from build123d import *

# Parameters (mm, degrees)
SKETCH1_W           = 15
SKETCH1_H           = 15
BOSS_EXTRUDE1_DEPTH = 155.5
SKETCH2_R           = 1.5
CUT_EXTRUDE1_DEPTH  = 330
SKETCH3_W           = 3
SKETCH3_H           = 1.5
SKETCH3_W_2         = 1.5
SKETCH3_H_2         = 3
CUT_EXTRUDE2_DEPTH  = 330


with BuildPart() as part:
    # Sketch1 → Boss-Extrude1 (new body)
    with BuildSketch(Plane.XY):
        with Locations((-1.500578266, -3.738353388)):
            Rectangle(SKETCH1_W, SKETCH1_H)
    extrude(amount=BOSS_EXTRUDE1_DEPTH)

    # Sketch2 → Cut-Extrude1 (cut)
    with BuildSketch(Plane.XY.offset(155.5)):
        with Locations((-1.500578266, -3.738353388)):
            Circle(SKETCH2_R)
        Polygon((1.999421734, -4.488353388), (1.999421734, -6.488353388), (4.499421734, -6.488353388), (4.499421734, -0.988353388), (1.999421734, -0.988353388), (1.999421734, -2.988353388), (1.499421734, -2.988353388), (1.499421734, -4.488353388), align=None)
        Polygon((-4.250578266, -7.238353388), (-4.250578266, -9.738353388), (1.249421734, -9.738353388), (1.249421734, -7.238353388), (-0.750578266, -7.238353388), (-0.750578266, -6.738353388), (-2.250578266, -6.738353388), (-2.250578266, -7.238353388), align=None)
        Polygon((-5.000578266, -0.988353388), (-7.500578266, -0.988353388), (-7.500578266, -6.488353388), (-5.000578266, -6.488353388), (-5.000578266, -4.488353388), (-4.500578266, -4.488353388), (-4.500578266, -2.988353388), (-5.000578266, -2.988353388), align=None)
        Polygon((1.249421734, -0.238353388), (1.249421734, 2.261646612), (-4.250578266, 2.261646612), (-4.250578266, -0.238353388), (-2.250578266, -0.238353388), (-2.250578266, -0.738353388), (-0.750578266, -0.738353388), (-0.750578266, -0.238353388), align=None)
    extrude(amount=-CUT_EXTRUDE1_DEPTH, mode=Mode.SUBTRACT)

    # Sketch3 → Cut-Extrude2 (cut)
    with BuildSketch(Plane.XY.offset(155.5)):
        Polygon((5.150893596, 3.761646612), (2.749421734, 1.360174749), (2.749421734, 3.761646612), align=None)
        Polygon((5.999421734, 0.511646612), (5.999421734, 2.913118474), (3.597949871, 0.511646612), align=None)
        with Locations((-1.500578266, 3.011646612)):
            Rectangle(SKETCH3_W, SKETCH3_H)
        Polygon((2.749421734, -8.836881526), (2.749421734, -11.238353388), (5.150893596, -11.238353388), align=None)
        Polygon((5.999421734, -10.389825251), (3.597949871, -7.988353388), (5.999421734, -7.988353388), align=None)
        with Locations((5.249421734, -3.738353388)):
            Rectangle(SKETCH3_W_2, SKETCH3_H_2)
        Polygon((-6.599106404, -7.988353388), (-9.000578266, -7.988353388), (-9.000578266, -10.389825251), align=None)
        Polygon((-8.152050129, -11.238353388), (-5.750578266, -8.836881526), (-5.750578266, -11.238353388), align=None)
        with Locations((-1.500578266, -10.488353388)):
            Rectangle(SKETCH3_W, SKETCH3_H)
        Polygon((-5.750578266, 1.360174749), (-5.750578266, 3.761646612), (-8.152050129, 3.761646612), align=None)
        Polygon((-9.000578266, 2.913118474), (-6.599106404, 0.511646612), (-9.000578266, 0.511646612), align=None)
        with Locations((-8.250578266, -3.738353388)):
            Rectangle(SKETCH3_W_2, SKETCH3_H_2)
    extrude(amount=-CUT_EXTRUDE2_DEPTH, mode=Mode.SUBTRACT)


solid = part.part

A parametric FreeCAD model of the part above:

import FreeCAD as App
import Part
import Sketcher

V = App.Vector
Q = App.Units.Quantity

doc = App.newDocument("Part")
body = doc.addObject("PartDesign::Body", "Body")

sketch1 = doc.addObject("Sketcher::SketchObject", "Sketch")
body.addObject(sketch1)
sketch1.AttachmentSupport = (doc.XY_Plane, [""])
sketch1.MapMode = "FlatFace"
sketch1.addGeometry([
    Part.LineSegment(V(-9.000578, 3.761647, 0), V(-9.000578, -11.238353, 0)),
    Part.LineSegment(V(-9.000578, -11.238353, 0), V(5.999422, -11.238353, 0)),
    Part.LineSegment(V(5.999422, -11.238353, 0), V(5.999422, 3.761647, 0)),
    Part.LineSegment(V(5.999422, 3.761647, 0), V(-9.000578, 3.761647, 0)),
], False)
sketch1.addConstraint([
    Sketcher.Constraint("Coincident", 0, 2, 1, 1),
    Sketcher.Constraint("Coincident", 1, 2, 2, 1),
    Sketcher.Constraint("Coincident", 2, 2, 3, 1),
    Sketcher.Constraint("Coincident", 3, 2, 0, 1),
    Sketcher.Constraint("Vertical", 0),
    Sketcher.Constraint("Horizontal", 1),
    Sketcher.Constraint("Vertical", 2),
    Sketcher.Constraint("Horizontal", 3),
    Sketcher.Constraint("Equal", 3, 0),
    Sketcher.Constraint("DistanceX", 1, 1, 1, 2, Q("15 mm")),
    Sketcher.Constraint("DistanceX", 0, 2, -1, 1, Q("9.000578 mm")),
    Sketcher.Constraint("DistanceY", 0, 2, -1, 1, Q("11.238353 mm")),
])
pad1 = doc.addObject("PartDesign::Pad", "Pad")
body.addObject(pad1)
pad1.Profile = sketch1
pad1.Length = 155.5

sketch2 = doc.addObject("Sketcher::SketchObject", "Sketch001")
body.addObject(sketch2)
sketch2.AttachmentSupport = (doc.XY_Plane, [""])
sketch2.MapMode = "FlatFace"
sketch2.AttachmentOffset = App.Placement(V(0, 0, 155.5), App.Rotation())
sketch2.addGeometry([
    Part.Circle(V(-1.500578, -3.738353, 0), V(0, 0, 1), 1.5),
    Part.LineSegment(V(1.999422, -4.488353, 0), V(1.999422, -6.488353, 0)),
    Part.LineSegment(V(1.999422, -6.488353, 0), V(4.499422, -6.488353, 0)),
    Part.LineSegment(V(4.499422, -6.488353, 0), V(4.499422, -0.988353, 0)),
    Part.LineSegment(V(4.499422, -0.988353, 0), V(1.999422, -0.988353, 0)),
    Part.LineSegment(V(1.999422, -0.988353, 0), V(1.999422, -2.988353, 0)),
    Part.LineSegment(V(1.999422, -2.988353, 0), V(1.499422, -2.988353, 0)),
    Part.LineSegment(V(1.499422, -2.988353, 0), V(1.499422, -4.488353, 0)),
    Part.LineSegment(V(1.499422, -4.488353, 0), V(1.999422, -4.488353, 0)),
    Part.LineSegment(V(-4.250578, -7.238353, 0), V(-4.250578, -9.738353, 0)),
    Part.LineSegment(V(-4.250578, -9.738353, 0), V(1.249422, -9.738353, 0)),
    Part.LineSegment(V(1.249422, -9.738353, 0), V(1.249422, -7.238353, 0)),
    Part.LineSegment(V(1.249422, -7.238353, 0), V(-0.750578, -7.238353, 0)),
    Part.LineSegment(V(-0.750578, -7.238353, 0), V(-0.750578, -6.738353, 0)),
    Part.LineSegment(V(-0.750578, -6.738353, 0), V(-2.250578, -6.738353, 0)),
    Part.LineSegment(V(-2.250578, -6.738353, 0), V(-2.250578, -7.238353, 0)),
    Part.LineSegment(V(-2.250578, -7.238353, 0), V(-4.250578, -7.238353, 0)),
    Part.LineSegment(V(-5.000578, -0.988353, 0), V(-7.500578, -0.988353, 0)),
    Part.LineSegment(V(-7.500578, -0.988353, 0), V(-7.500578, -6.488353, 0)),
    Part.LineSegment(V(-7.500578, -6.488353, 0), V(-5.000578, -6.488353, 0)),
    Part.LineSegment(V(-5.000578, -6.488353, 0), V(-5.000578, -4.488353, 0)),
    Part.LineSegment(V(-5.000578, -4.488353, 0), V(-4.500578, -4.488353, 0)),
    Part.LineSegment(V(-4.500578, -4.488353, 0), V(-4.500578, -2.988353, 0)),
    Part.LineSegment(V(-4.500578, -2.988353, 0), V(-5.000578, -2.988353, 0)),
    Part.LineSegment(V(-5.000578, -2.988353, 0), V(-5.000578, -0.988353, 0)),
    Part.LineSegment(V(1.249422, -0.238353, 0), V(1.249422, 2.261647, 0)),
    Part.LineSegment(V(1.249422, 2.261647, 0), V(-4.250578, 2.261647, 0)),
    Part.LineSegment(V(-4.250578, 2.261647, 0), V(-4.250578, -0.238353, 0)),
    Part.LineSegment(V(-4.250578, -0.238353, 0), V(-2.250578, -0.238353, 0)),
    Part.LineSegment(V(-2.250578, -0.238353, 0), V(-2.250578, -0.738353, 0)),
    Part.LineSegment(V(-2.250578, -0.738353, 0), V(-0.750578, -0.738353, 0)),
    Part.LineSegment(V(-0.750578, -0.738353, 0), V(-0.750578, -0.238353, 0)),
    Part.LineSegment(V(-0.750578, -0.238353, 0), V(1.249422, -0.238353, 0)),
], False)
sketch2.addConstraint([
    Sketcher.Constraint("Coincident", 1, 2, 2, 1),
    Sketcher.Constraint("Coincident", 2, 2, 3, 1),
    Sketcher.Constraint("Coincident", 3, 2, 4, 1),
    Sketcher.Constraint("Coincident", 4, 2, 5, 1),
    Sketcher.Constraint("Coincident", 5, 2, 6, 1),
    Sketcher.Constraint("Coincident", 6, 2, 7, 1),
    Sketcher.Constraint("Coincident", 7, 2, 8, 1),
    Sketcher.Constraint("Coincident", 8, 2, 1, 1),
    Sketcher.Constraint("Coincident", 9, 2, 10, 1),
    Sketcher.Constraint("Coincident", 10, 2, 11, 1),
    Sketcher.Constraint("Coincident", 11, 2, 12, 1),
    Sketcher.Constraint("Coincident", 12, 2, 13, 1),
    Sketcher.Constraint("Coincident", 13, 2, 14, 1),
    Sketcher.Constraint("Coincident", 14, 2, 15, 1),
    Sketcher.Constraint("Coincident", 15, 2, 16, 1),
    Sketcher.Constraint("Coincident", 16, 2, 9, 1),
    Sketcher.Constraint("Coincident", 17, 2, 18, 1),
    Sketcher.Constraint("Coincident", 18, 2, 19, 1),
    Sketcher.Constraint("Coincident", 19, 2, 20, 1),
    Sketcher.Constraint("Coincident", 20, 2, 21, 1),
    Sketcher.Constraint("Coincident", 21, 2, 22, 1),
    Sketcher.Constraint("Coincident", 22, 2, 23, 1),
    Sketcher.Constraint("Coincident", 23, 2, 24, 1),
    Sketcher.Constraint("Coincident", 24, 2, 17, 1),
    Sketcher.Constraint("Coincident", 25, 2, 26, 1),
    Sketcher.Constraint("Coincident", 26, 2, 27, 1),
    Sketcher.Constraint("Coincident", 27, 2, 28, 1),
    Sketcher.Constraint("Coincident", 28, 2, 29, 1),
    Sketcher.Constraint("Coincident", 29, 2, 30, 1),
    Sketcher.Constraint("Coincident", 30, 2, 31, 1),
    Sketcher.Constraint("Coincident", 31, 2, 32, 1),
    Sketcher.Constraint("Coincident", 32, 2, 25, 1),
    Sketcher.Constraint("Vertical", 1),
    Sketcher.Constraint("Horizontal", 2),
    Sketcher.Constraint("Vertical", 3),
    Sketcher.Constraint("Horizontal", 4),
    Sketcher.Constraint("Vertical", 5),
    Sketcher.Constraint("Horizontal", 6),
    Sketcher.Constraint("Vertical", 7),
    Sketcher.Constraint("Horizontal", 8),
    Sketcher.Constraint("Vertical", 9),
    Sketcher.Constraint("Horizontal", 10),
    Sketcher.Constraint("Vertical", 11),
    Sketcher.Constraint("Horizontal", 12),
    Sketcher.Constraint("Vertical", 13),
    Sketcher.Constraint("Horizontal", 14),
    Sketcher.Constraint("Vertical", 15),
    Sketcher.Constraint("Horizontal", 16),
    Sketcher.Constraint("Horizontal", 17),
    Sketcher.Constraint("Vertical", 18),
    Sketcher.Constraint("Horizontal", 19),
    Sketcher.Constraint("Vertical", 20),
    Sketcher.Constraint("Horizontal", 21),
    Sketcher.Constraint("Vertical", 22),
    Sketcher.Constraint("Horizontal", 23),
    Sketcher.Constraint("Vertical", 24),
    Sketcher.Constraint("Vertical", 25),
    Sketcher.Constraint("Horizontal", 26),
    Sketcher.Constraint("Vertical", 27),
    Sketcher.Constraint("Horizontal", 28),
    Sketcher.Constraint("Vertical", 29),
    Sketcher.Constraint("Horizontal", 30),
    Sketcher.Constraint("Vertical", 31),
    Sketcher.Constraint("Horizontal", 32),
    Sketcher.Constraint("Horizontal", 12, 2, 15, 2),
    Sketcher.Constraint("Horizontal", 4, 2, 17, 2),
    Sketcher.Constraint("Horizontal", 2, 2, 18, 2),
    Sketcher.Constraint("Horizontal", 8, 2, 20, 2),
    Sketcher.Constraint("Horizontal", 6, 2, 22, 2),
    Sketcher.Constraint("Horizontal", 28, 2, 31, 2),
    Sketcher.Constraint("Vertical", 1, 2, 4, 2),
    Sketcher.Constraint("Vertical", 20, 2, 23, 2),
    Sketcher.Constraint("Vertical", 11, 2, 25, 2),
    Sketcher.Constraint("Vertical", 16, 2, 26, 2),
    Sketcher.Constraint("Vertical", 15, 2, 28, 2),
    Sketcher.Constraint("Vertical", 13, 2, 30, 2),
    Sketcher.Constraint("Equal", 12, 16),
    Sketcher.Constraint("Equal", 4, 17),
    Sketcher.Constraint("Equal", 8, 21),
    Sketcher.Constraint("Equal", 32, 1),
    Sketcher.Constraint("Equal", 26, 3),
    Sketcher.Constraint("Equal", 1, 5),
    Sketcher.Constraint("Equal", 19, 9),
    Sketcher.Constraint("Equal", 23, 13),
    Sketcher.Constraint("Equal", 11, 25),
    Sketcher.Constraint("Equal", 15, 29),
    Sketcher.Constraint("Diameter", 0, Q("3 mm")),
    Sketcher.Constraint("DistanceX", 12, 2, 12, 1, Q("2 mm")),
    Sketcher.Constraint("DistanceX", 2, 1, 2, 2, Q("2.5 mm")),
    Sketcher.Constraint("DistanceX", 6, 2, 6, 1, Q("0.5 mm")),
    Sketcher.Constraint("DistanceX", 10, 1, 10, 2, Q("5.5 mm")),
    Sketcher.Constraint("DistanceX", 0, 3, 2, 2, Q("6 mm")),
    Sketcher.Constraint("DistanceY", 9, 2, 0, 3, Q("6 mm")),
    Sketcher.Constraint("DistanceX", 17, 2, 0, 3, Q("6 mm")),
    Sketcher.Constraint("DistanceY", 0, 3, 25, 2, Q("6 mm")),
    Sketcher.Constraint("DistanceY", 1, 2, 0, 3, Q("2.75 mm")),
    Sketcher.Constraint("DistanceX", 9, 2, 0, 3, Q("2.75 mm")),
    Sketcher.Constraint("DistanceX", 0, 3, -1, 1, Q("1.500578 mm")),
    Sketcher.Constraint("DistanceY", 0, 3, -1, 1, Q("3.738353 mm")),
])
pocket1 = doc.addObject("PartDesign::Pocket", "Pocket")
body.addObject(pocket1)
pocket1.Profile = sketch2
pocket1.Length = 330

sketch3 = doc.addObject("Sketcher::SketchObject", "Sketch002")
body.addObject(sketch3)
sketch3.AttachmentSupport = (doc.XY_Plane, [""])
sketch3.MapMode = "FlatFace"
sketch3.AttachmentOffset = App.Placement(V(0, 0, 155.5), App.Rotation())
sketch3.addGeometry([
    Part.LineSegment(V(2.749422, 1.360175, 0), V(5.150894, 3.761647, 0)),
    Part.LineSegment(V(5.150894, 3.761647, 0), V(2.749422, 3.761647, 0)),
    Part.LineSegment(V(2.749422, 3.761647, 0), V(2.749422, 1.360175, 0)),
    Part.LineSegment(V(5.999422, 0.511647, 0), V(5.999422, 2.913118, 0)),
    Part.LineSegment(V(5.999422, 2.913118, 0), V(3.59795, 0.511647, 0)),
    Part.LineSegment(V(3.59795, 0.511647, 0), V(5.999422, 0.511647, 0)),
    Part.LineSegment(V(-3.000578, 3.761647, 0), V(-3.000578, 2.261647, 0)),
    Part.LineSegment(V(-3.000578, 2.261647, 0), V(-0.000578, 2.261647, 0)),
    Part.LineSegment(V(-0.000578, 2.261647, 0), V(-0.000578, 3.761647, 0)),
    Part.LineSegment(V(-0.000578, 3.761647, 0), V(-3.000578, 3.761647, 0)),
    Part.LineSegment(V(2.749422, -8.836882, 0), V(2.749422, -11.238353, 0)),
    Part.LineSegment(V(2.749422, -11.238353, 0), V(5.150894, -11.238353, 0)),
    Part.LineSegment(V(5.150894, -11.238353, 0), V(2.749422, -8.836882, 0)),
    Part.LineSegment(V(3.59795, -7.988353, 0), V(5.999422, -10.389825, 0)),
    Part.LineSegment(V(5.999422, -10.389825, 0), V(5.999422, -7.988353, 0)),
    Part.LineSegment(V(5.999422, -7.988353, 0), V(3.59795, -7.988353, 0)),
    Part.LineSegment(V(4.499422, -2.238353, 0), V(4.499422, -5.238353, 0)),
    Part.LineSegment(V(4.499422, -5.238353, 0), V(5.999422, -5.238353, 0)),
    Part.LineSegment(V(5.999422, -5.238353, 0), V(5.999422, -2.238353, 0)),
    Part.LineSegment(V(5.999422, -2.238353, 0), V(4.499422, -2.238353, 0)),
    Part.LineSegment(V(-6.599106, -7.988353, 0), V(-9.000578, -7.988353, 0)),
    Part.LineSegment(V(-9.000578, -7.988353, 0), V(-9.000578, -10.389825, 0)),
    Part.LineSegment(V(-9.000578, -10.389825, 0), V(-6.599106, -7.988353, 0)),
    Part.LineSegment(V(-5.750578, -8.836882, 0), V(-8.15205, -11.238353, 0)),
    Part.LineSegment(V(-8.15205, -11.238353, 0), V(-5.750578, -11.238353, 0)),
    Part.LineSegment(V(-5.750578, -11.238353, 0), V(-5.750578, -8.836882, 0)),
    Part.LineSegment(V(-3.000578, -9.738353, 0), V(-3.000578, -11.238353, 0)),
    Part.LineSegment(V(-3.000578, -11.238353, 0), V(-0.000578, -11.238353, 0)),
    Part.LineSegment(V(-0.000578, -11.238353, 0), V(-0.000578, -9.738353, 0)),
    Part.LineSegment(V(-0.000578, -9.738353, 0), V(-3.000578, -9.738353, 0)),
    Part.LineSegment(V(-5.750578, 1.360175, 0), V(-5.750578, 3.761647, 0)),
    Part.LineSegment(V(-5.750578, 3.761647, 0), V(-8.15205, 3.761647, 0)),
    Part.LineSegment(V(-8.15205, 3.761647, 0), V(-5.750578, 1.360175, 0)),
    Part.LineSegment(V(-6.599106, 0.511647, 0), V(-9.000578, 2.913118, 0)),
    Part.LineSegment(V(-9.000578, 2.913118, 0), V(-9.000578, 0.511647, 0)),
    Part.LineSegment(V(-9.000578, 0.511647, 0), V(-6.599106, 0.511647, 0)),
    Part.LineSegment(V(-9.000578, -2.238353, 0), V(-9.000578, -5.238353, 0)),
    Part.LineSegment(V(-9.000578, -5.238353, 0), V(-7.500578, -5.238353, 0)),
    Part.LineSegment(V(-7.500578, -5.238353, 0), V(-7.500578, -2.238353, 0)),
    Part.LineSegment(V(-7.500578, -2.238353, 0), V(-9.000578, -2.238353, 0)),
], False)
sketch3.addConstraint([
    Sketcher.Constraint("Coincident", 0, 2, 1, 1),
    Sketcher.Constraint("Coincident", 1, 2, 2, 1),
    Sketcher.Constraint("Coincident", 2, 2, 0, 1),
    Sketcher.Constraint("Coincident", 3, 2, 4, 1),
    Sketcher.Constraint("Coincident", 4, 2, 5, 1),
    Sketcher.Constraint("Coincident", 5, 2, 3, 1),
    Sketcher.Constraint("Coincident", 6, 2, 7, 1),
    Sketcher.Constraint("Coincident", 7, 2, 8, 1),
    Sketcher.Constraint("Coincident", 8, 2, 9, 1),
    Sketcher.Constraint("Coincident", 9, 2, 6, 1),
    Sketcher.Constraint("Coincident", 10, 2, 11, 1),
    Sketcher.Constraint("Coincident", 11, 2, 12, 1),
    Sketcher.Constraint("Coincident", 12, 2, 10, 1),
    Sketcher.Constraint("Coincident", 13, 2, 14, 1),
    Sketcher.Constraint("Coincident", 14, 2, 15, 1),
    Sketcher.Constraint("Coincident", 15, 2, 13, 1),
    Sketcher.Constraint("Coincident", 16, 2, 17, 1),
    Sketcher.Constraint("Coincident", 17, 2, 18, 1),
    Sketcher.Constraint("Coincident", 18, 2, 19, 1),
    Sketcher.Constraint("Coincident", 19, 2, 16, 1),
    Sketcher.Constraint("Coincident", 20, 2, 21, 1),
    Sketcher.Constraint("Coincident", 21, 2, 22, 1),
    Sketcher.Constraint("Coincident", 22, 2, 20, 1),
    Sketcher.Constraint("Coincident", 23, 2, 24, 1),
    Sketcher.Constraint("Coincident", 24, 2, 25, 1),
    Sketcher.Constraint("Coincident", 25, 2, 23, 1),
    Sketcher.Constraint("Coincident", 26, 2, 27, 1),
    Sketcher.Constraint("Coincident", 27, 2, 28, 1),
    Sketcher.Constraint("Coincident", 28, 2, 29, 1),
    Sketcher.Constraint("Coincident", 29, 2, 26, 1),
    Sketcher.Constraint("Coincident", 30, 2, 31, 1),
    Sketcher.Constraint("Coincident", 31, 2, 32, 1),
    Sketcher.Constraint("Coincident", 32, 2, 30, 1),
    Sketcher.Constraint("Coincident", 33, 2, 34, 1),
    Sketcher.Constraint("Coincident", 34, 2, 35, 1),
    Sketcher.Constraint("Coincident", 35, 2, 33, 1),
    Sketcher.Constraint("Coincident", 36, 2, 37, 1),
    Sketcher.Constraint("Coincident", 37, 2, 38, 1),
    Sketcher.Constraint("Coincident", 38, 2, 39, 1),
    Sketcher.Constraint("Coincident", 39, 2, 36, 1),
    Sketcher.Constraint("Horizontal", 1),
    Sketcher.Constraint("Vertical", 2),
    Sketcher.Constraint("Vertical", 3),
    Sketcher.Constraint("Horizontal", 5),
    Sketcher.Constraint("Vertical", 6),
    Sketcher.Constraint("Horizontal", 7),
    Sketcher.Constraint("Vertical", 8),
    Sketcher.Constraint("Horizontal", 9),
    Sketcher.Constraint("Vertical", 10),
    Sketcher.Constraint("Horizontal", 11),
    Sketcher.Constraint("Vertical", 14),
    Sketcher.Constraint("Horizontal", 15),
    Sketcher.Constraint("Vertical", 16),
    Sketcher.Constraint("Horizontal", 17),
    Sketcher.Constraint("Vertical", 18),
    Sketcher.Constraint("Horizontal", 19),
    Sketcher.Constraint("Horizontal", 20),
    Sketcher.Constraint("Vertical", 21),
    Sketcher.Constraint("Horizontal", 24),
    Sketcher.Constraint("Vertical", 25),
    Sketcher.Constraint("Vertical", 26),
    Sketcher.Constraint("Horizontal", 27),
    Sketcher.Constraint("Vertical", 28),
    Sketcher.Constraint("Horizontal", 29),
    Sketcher.Constraint("Vertical", 30),
    Sketcher.Constraint("Horizontal", 31),
    Sketcher.Constraint("Vertical", 34),
    Sketcher.Constraint("Horizontal", 35),
    Sketcher.Constraint("Vertical", 36),
    Sketcher.Constraint("Horizontal", 37),
    Sketcher.Constraint("Vertical", 38),
    Sketcher.Constraint("Horizontal", 39),
    Sketcher.Constraint("Parallel", 0, 4),
    Sketcher.Constraint("Perpendicular", 4, 12),
    Sketcher.Constraint("Parallel", 12, 13),
    Sketcher.Constraint("Perpendicular", 13, 22),
    Sketcher.Constraint("Parallel", 22, 23),
    Sketcher.Constraint("Perpendicular", 23, 32),
    Sketcher.Constraint("Parallel", 32, 33),
    Sketcher.Constraint("Horizontal", 1, 2, 8, 2),
    Sketcher.Constraint("Horizontal", 15, 2, 20, 2),
    Sketcher.Constraint("Horizontal", 13, 2, 21, 2),
    Sketcher.Constraint("Horizontal", 11, 2, 23, 2),
    Sketcher.Constraint("Horizontal", 12, 2, 25, 2),
    Sketcher.Constraint("Horizontal", 24, 2, 26, 2),
    Sketcher.Constraint("Horizontal", 9, 2, 30, 2),
    Sketcher.Constraint("Horizontal", 2, 2, 32, 2),
    Sketcher.Constraint("Horizontal", 3, 2, 33, 2),
    Sketcher.Constraint("Horizontal", 5, 2, 34, 2),
    Sketcher.Constraint("Horizontal", 17, 2, 36, 2),
    Sketcher.Constraint("Horizontal", 19, 2, 38, 2),
    Sketcher.Constraint("Vertical", 2, 2, 10, 2),
    Sketcher.Constraint("Vertical", 0, 2, 11, 2),
    Sketcher.Constraint("Vertical", 5, 2, 13, 2),
    Sketcher.Constraint("Vertical", 4, 2, 15, 2),
    Sketcher.Constraint("Vertical", 14, 2, 17, 2),
    Sketcher.Constraint("Vertical", 9, 2, 26, 2),
    Sketcher.Constraint("Vertical", 8, 2, 27, 2),
    Sketcher.Constraint("Vertical", 25, 2, 30, 2),
    Sketcher.Constraint("Vertical", 23, 2, 31, 2),
    Sketcher.Constraint("Vertical", 21, 2, 33, 2),
    Sketcher.Constraint("Vertical", 34, 2, 36, 2),
    Sketcher.Constraint("Equal", 1, 5),
    Sketcher.Constraint("Equal", 19, 37),
    Sketcher.Constraint("Equal", 39, 6),
    Sketcher.Constraint("Equal", 29, 16),
    Sketcher.Constraint("Equal", 8, 26),
    Sketcher.Constraint("DistanceX", 7, 1, 7, 2, Q("3 mm")),
    Sketcher.Constraint("DistanceX", 17, 1, 17, 2, Q("1.5 mm")),
    Sketcher.Constraint("DistanceX", 6, 2, 3, 2, Q("9 mm")),
    Sketcher.Constraint("DistanceX", 20, 2, 6, 2, Q("6 mm")),
    Sketcher.Constraint("DistanceY", 10, 2, 7, 2, Q("13.5 mm")),
    Sketcher.Constraint("DistanceY", 14, 2, 5, 2, Q("8.5 mm")),
    Sketcher.Constraint("DistanceX", 24, 2, 10, 2, Q("8.5 mm")),
    Sketcher.Constraint("DistanceX", 1, 2, 3, 2, Q("3.25 mm")),
    Sketcher.Constraint("DistanceY", 4, 2, 1, 2, Q("3.25 mm")),
    Sketcher.Constraint("DistanceY", 15, 2, 16, 2, Q("2.75 mm")),
    Sketcher.Constraint("DistanceX", 1, 2, 1, 1, Q("2.401472 mm")),
    Sketcher.Constraint("DistanceX", -1, 1, 1, 2, Q("2.749422 mm")),
    Sketcher.Constraint("DistanceY", -1, 1, 3, 2, Q("2.913118 mm")),
])
pocket2 = doc.addObject("PartDesign::Pocket", "Pocket001")
body.addObject(pocket2)
pocket2.Profile = sketch3
pocket2.Length = 330

doc.recompute()
